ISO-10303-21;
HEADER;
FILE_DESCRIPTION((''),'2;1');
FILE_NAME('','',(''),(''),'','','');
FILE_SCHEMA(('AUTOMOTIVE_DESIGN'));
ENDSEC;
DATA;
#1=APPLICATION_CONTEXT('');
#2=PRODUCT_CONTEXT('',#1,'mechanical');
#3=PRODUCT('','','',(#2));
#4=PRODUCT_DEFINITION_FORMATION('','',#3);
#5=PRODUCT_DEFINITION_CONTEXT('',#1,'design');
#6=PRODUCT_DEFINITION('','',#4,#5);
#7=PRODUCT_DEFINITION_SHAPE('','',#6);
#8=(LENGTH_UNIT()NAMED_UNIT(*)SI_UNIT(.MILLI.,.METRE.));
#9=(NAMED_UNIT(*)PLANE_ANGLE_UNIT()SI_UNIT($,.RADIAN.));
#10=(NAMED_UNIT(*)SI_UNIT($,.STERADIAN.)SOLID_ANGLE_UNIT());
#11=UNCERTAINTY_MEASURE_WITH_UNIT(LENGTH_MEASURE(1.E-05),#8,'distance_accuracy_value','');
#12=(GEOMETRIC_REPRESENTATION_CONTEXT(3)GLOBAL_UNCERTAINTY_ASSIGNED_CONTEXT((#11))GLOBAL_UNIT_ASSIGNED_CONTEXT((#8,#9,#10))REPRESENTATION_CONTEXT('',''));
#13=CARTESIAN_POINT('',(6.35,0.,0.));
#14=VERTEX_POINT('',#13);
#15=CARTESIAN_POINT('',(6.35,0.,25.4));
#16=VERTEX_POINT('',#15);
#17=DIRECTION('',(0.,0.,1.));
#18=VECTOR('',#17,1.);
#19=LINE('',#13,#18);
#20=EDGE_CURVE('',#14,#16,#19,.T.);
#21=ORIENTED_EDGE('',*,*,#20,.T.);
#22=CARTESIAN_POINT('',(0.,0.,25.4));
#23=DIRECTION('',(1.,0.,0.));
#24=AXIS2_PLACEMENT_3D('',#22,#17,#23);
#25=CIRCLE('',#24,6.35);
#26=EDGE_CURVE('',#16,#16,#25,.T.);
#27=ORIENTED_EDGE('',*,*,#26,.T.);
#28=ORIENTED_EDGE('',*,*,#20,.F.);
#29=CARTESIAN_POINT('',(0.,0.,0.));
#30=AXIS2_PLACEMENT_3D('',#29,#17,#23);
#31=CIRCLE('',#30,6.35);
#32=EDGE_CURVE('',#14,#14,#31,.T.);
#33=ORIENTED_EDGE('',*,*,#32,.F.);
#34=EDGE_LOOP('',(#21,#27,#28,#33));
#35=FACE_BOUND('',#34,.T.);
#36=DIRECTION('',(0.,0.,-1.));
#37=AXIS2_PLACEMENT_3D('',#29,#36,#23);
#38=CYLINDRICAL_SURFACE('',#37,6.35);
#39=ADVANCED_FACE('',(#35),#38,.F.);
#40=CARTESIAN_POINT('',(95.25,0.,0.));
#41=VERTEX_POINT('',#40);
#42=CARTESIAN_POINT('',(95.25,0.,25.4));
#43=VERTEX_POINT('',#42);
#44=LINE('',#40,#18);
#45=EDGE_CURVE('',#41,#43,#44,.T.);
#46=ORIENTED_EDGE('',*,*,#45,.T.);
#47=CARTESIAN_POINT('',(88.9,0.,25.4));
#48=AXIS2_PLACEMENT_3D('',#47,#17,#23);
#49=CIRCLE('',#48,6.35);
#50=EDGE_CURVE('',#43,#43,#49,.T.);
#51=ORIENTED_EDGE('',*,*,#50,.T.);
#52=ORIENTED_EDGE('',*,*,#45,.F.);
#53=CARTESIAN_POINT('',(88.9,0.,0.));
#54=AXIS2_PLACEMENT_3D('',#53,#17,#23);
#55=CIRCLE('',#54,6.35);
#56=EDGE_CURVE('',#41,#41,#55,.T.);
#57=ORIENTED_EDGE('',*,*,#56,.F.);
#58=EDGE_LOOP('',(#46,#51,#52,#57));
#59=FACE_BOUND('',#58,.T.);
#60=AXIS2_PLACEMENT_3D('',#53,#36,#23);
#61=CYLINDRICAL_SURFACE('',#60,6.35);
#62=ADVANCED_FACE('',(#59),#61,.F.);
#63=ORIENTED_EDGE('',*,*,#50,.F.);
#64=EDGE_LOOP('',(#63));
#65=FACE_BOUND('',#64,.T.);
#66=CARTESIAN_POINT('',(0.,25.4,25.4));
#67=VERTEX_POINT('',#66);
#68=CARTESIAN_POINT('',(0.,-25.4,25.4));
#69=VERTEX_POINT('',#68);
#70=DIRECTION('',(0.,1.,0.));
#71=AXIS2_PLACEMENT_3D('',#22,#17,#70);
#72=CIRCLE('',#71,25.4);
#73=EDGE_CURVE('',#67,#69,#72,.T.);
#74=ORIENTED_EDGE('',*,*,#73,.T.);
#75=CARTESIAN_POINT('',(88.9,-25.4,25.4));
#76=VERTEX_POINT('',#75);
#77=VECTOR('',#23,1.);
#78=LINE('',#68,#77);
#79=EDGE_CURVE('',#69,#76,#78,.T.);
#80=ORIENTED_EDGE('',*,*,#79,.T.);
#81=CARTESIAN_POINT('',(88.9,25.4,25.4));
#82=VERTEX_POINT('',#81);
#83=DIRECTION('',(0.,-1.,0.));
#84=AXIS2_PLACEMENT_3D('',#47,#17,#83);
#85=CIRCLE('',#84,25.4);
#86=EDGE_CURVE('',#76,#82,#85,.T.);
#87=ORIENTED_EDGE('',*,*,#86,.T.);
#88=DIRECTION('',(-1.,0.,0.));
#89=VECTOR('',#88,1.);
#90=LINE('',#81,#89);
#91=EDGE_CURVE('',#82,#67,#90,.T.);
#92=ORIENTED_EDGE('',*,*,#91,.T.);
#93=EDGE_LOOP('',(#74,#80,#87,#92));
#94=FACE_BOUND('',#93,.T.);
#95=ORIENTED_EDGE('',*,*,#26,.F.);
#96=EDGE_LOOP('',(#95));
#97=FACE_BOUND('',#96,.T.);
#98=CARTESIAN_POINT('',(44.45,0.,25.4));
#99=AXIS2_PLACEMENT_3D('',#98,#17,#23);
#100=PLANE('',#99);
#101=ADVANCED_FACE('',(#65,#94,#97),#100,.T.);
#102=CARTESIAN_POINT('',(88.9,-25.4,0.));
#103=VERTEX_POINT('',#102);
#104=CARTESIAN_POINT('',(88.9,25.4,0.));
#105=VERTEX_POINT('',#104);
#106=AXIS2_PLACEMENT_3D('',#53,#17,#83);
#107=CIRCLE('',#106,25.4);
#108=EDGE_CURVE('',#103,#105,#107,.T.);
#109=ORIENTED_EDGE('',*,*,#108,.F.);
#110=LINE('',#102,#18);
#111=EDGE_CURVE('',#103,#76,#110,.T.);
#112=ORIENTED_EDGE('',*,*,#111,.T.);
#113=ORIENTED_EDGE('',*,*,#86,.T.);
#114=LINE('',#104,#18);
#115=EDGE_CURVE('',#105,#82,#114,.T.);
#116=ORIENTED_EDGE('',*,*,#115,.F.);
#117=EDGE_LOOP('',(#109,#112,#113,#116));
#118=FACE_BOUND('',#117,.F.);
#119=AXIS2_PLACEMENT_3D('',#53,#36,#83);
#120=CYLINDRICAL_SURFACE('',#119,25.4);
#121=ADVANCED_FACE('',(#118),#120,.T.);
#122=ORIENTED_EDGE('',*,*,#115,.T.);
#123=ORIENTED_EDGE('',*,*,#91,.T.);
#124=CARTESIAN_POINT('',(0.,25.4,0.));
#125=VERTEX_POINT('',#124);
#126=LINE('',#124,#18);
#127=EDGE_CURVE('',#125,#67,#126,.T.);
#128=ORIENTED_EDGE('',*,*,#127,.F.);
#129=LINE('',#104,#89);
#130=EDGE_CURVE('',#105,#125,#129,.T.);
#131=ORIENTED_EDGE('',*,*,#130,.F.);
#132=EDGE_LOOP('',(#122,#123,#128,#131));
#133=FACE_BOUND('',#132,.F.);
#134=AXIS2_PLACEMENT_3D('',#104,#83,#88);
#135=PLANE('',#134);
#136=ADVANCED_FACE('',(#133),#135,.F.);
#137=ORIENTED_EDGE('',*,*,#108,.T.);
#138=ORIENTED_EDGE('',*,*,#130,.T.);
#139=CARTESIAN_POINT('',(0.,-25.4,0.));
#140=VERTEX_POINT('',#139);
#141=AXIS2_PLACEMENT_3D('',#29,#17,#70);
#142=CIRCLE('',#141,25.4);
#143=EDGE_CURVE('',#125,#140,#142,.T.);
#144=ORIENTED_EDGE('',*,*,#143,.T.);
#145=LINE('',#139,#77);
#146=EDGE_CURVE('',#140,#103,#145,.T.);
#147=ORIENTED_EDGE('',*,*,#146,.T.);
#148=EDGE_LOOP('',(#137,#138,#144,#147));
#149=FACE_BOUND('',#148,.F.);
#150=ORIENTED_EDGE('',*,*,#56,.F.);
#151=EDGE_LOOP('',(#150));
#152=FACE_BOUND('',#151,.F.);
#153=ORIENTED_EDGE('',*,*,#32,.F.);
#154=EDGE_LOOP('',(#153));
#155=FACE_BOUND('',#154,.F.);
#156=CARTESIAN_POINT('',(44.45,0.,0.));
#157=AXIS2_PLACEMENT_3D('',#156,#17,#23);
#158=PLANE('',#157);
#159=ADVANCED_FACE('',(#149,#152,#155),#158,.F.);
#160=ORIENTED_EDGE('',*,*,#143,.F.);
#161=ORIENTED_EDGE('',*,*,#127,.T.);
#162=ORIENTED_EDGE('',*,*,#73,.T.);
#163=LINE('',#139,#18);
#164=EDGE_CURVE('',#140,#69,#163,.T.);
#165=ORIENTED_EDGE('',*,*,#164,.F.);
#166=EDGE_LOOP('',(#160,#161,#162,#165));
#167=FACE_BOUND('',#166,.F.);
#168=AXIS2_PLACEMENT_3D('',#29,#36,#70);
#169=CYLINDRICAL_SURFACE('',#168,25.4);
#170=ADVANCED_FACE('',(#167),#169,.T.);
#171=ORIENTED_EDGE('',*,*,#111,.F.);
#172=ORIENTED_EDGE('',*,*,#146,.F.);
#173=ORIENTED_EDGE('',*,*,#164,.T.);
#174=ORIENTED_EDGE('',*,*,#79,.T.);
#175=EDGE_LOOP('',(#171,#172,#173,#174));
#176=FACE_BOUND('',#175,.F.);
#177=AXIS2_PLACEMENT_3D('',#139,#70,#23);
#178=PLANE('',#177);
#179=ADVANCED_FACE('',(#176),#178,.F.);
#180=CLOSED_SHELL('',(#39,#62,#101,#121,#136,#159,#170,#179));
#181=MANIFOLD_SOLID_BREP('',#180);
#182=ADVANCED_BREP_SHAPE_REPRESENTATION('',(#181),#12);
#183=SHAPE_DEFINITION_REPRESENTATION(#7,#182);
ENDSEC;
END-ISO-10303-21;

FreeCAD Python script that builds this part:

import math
import FreeCAD as App
import Part
import Sketcher

V = App.Vector
Q = App.Units.Quantity

doc = App.newDocument("Part")
params = doc.addObject("Spreadsheet::Sheet", "Params")
for row, (alias, value) in enumerate([
    ("sketch1_radius", "1 in"),
    ("sketch1_diameter", "0.5 in"),
    ("sketch1_width", "3.5 in"),
    ("pad1_length", "1 in"),
], start=1):
    params.set(f"A{row}", alias)
    params.set(f"B{row}", "=" + value)
    params.setAlias(f"B{row}", alias)

body = doc.addObject("PartDesign::Body", "Body")

sketch1 = body.newObject("Sketcher::SketchObject", "Sketch")
sketch1.AttachmentSupport = (doc.getObject("XY_Plane"), [""])
sketch1.MapMode = "FlatFace"
sketch1.addGeometry(Part.ArcOfCircle(Part.Circle(V(0, 0, 0), V(0, 0, 1), 25), math.radians(90), math.radians(270)), False)
sketch1.addGeometry(Part.LineSegment(V(0, -25, 0), V(89, -25, 0)), False)
sketch1.addGeometry(Part.ArcOfCircle(Part.Circle(V(89, 0, 0), V(0, 0, 1), 25), math.radians(-90), math.radians(90)), False)
sketch1.addGeometry(Part.LineSegment(V(89, 25, 0), V(0, 25, 0)), False)
sketch1.addGeometry(Part.Circle(V(0, 0, 0), V(0, 0, 1), 6), False)
sketch1.addGeometry(Part.Circle(V(89, 0, 0), V(0, 0, 1), 6), False)
sketch1.addConstraint(Sketcher.Constraint("Tangent", 0, 2, 1, 1))
sketch1.addConstraint(Sketcher.Constraint("Tangent", 1, 2, 2, 1))
sketch1.addConstraint(Sketcher.Constraint("Tangent", 2, 2, 3, 1))
sketch1.addConstraint(Sketcher.Constraint("Tangent", 3, 2, 0, 1))
sketch1.addConstraint(Sketcher.Constraint("Horizontal", 1))
sketch1.addConstraint(Sketcher.Constraint("Horizontal", 3))
sketch1.addConstraint(Sketcher.Constraint("Coincident", 0, 3, -1, 1))
sketch1.addConstraint(Sketcher.Constraint("Coincident", 4, 3, -1, 1))
sketch1.addConstraint(Sketcher.Constraint("Coincident", 5, 3, 2, 3))
sketch1.addConstraint(Sketcher.Constraint("Equal", 4, 5))
sketch1.addConstraint(Sketcher.Constraint("Radius", 0, Q("1 in")))
sketch1.addConstraint(Sketcher.Constraint("Diameter", 4, Q("0.5 in")))
sketch1.addConstraint(Sketcher.Constraint("DistanceX", 1, 1, 1, 2, Q("3.5 in")))
sketch1.setExpression("Constraints[10]", "Params.sketch1_radius")
sketch1.setExpression("Constraints[11]", "Params.sketch1_diameter")
sketch1.setExpression("Constraints[12]", "Params.sketch1_width")
pad1 = body.newObject("PartDesign::Pad", "Pad")
pad1.Profile = sketch1
pad1.setExpression("Length", "Params.pad1_length")

doc.recompute()
